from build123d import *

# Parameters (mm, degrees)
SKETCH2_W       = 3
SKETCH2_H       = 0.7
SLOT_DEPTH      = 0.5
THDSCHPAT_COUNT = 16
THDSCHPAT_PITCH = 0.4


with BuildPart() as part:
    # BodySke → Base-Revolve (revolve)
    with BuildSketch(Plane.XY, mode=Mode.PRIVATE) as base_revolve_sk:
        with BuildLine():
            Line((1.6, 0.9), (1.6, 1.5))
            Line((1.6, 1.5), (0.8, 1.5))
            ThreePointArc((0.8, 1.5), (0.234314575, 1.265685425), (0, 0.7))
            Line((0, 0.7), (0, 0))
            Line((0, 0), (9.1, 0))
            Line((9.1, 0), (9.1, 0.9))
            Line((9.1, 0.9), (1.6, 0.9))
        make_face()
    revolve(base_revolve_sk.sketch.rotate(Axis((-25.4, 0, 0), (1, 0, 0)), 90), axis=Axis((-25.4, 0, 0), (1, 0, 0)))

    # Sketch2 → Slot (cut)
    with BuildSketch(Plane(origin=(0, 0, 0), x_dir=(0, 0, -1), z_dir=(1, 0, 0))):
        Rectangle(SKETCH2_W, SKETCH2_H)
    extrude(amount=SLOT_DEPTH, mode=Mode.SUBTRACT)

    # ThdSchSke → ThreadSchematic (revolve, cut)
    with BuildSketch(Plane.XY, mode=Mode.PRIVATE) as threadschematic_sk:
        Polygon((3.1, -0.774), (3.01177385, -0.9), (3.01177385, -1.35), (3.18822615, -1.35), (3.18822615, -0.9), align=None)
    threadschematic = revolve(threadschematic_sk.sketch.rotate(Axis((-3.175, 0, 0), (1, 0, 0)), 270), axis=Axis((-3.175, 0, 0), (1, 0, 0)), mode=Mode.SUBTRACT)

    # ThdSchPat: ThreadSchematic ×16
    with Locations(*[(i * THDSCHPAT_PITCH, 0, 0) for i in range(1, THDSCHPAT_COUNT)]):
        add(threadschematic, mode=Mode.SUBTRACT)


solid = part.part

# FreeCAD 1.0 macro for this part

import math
import FreeCAD as App
import Part
import Sketcher

V = App.Vector
Q = App.Units.Quantity

doc = App.newDocument("Part")
body = doc.addObject("PartDesign::Body", "Body")

sketch1 = body.newObject("Sketcher::SketchObject", "Sketch")
sketch1.AttachmentSupport = (doc.getObject("XY_Plane"), [""])
sketch1.MapMode = "FlatFace"
sketch1.addGeometry(Part.LineSegment(V(1.6, 0.9, 0), V(1.6, 1.5, 0)), False)
sketch1.addGeometry(Part.LineSegment(V(1.6, 1.5, 0), V(0.8, 1.5, 0)), False)
sketch1.addGeometry(Part.ArcOfCircle(Part.Circle(V(0.8, 0.7, 0), V(0, 0, 1), 0.8), math.radians(90), math.radians(180)), False)
sketch1.addGeometry(Part.LineSegment(V(0, 0.7, 0), V(0, 0, 0)), False)
sketch1.addGeometry(Part.LineSegment(V(0, 0, 0), V(9.1, 0, 0)), False)
sketch1.addGeometry(Part.LineSegment(V(9.1, 0, 0), V(9.1, 0.9, 0)), False)
sketch1.addGeometry(Part.LineSegment(V(9.1, 0.9, 0), V(1.6, 0.9, 0)), False)
sketch1.addConstraint(Sketcher.Constraint("Coincident", 0, 2, 1, 1))
sketch1.addConstraint(Sketcher.Constraint("Tangent", 1, 2, 2, 1))
sketch1.addConstraint(Sketcher.Constraint("Tangent", 2, 2, 3, 1))
sketch1.addConstraint(Sketcher.Constraint("Coincident", 3, 2, 4, 1))
sketch1.addConstraint(Sketcher.Constraint("Coincident", 4, 2, 5, 1))
sketch1.addConstraint(Sketcher.Constraint("Coincident", 5, 2, 6, 1))
sketch1.addConstraint(Sketcher.Constraint("Coincident", 6, 2, 0, 1))
sketch1.addConstraint(Sketcher.Constraint("Vertical", 0))
sketch1.addConstraint(Sketcher.Constraint("Horizontal", 1))
sketch1.addConstraint(Sketcher.Constraint("Vertical", 3))
sketch1.addConstraint(Sketcher.Constraint("Horizontal", 4))
sketch1.addConstraint(Sketcher.Constraint("Vertical", 5))
sketch1.addConstraint(Sketcher.Constraint("Horizontal", 6))
sketch1.addConstraint(Sketcher.Constraint("Coincident", 3, 2, -1, 1))
sketch1.addConstraint(Sketcher.Constraint("Radius", 2, 0.8))
sketch1.addConstraint(Sketcher.Constraint("DistanceX", 1, 2, 1, 1, 0.8))
sketch1.addConstraint(Sketcher.Constraint("DistanceX", 4, 1, 4, 2, 9.1))
sketch1.addConstraint(Sketcher.Constraint("DistanceY", 0, 1, 0, 2, 0.6))
sketch1.addConstraint(Sketcher.Constraint("DistanceY", 3, 2, 3, 1, 0.7))
revolution = body.newObject("PartDesign::Revolution", "Revolution")
revolution.Profile = sketch1
revolution.ReferenceAxis = (sketch1, ["H_Axis"])
revolution.Angle = 360

sketch2 = body.newObject("Sketcher::SketchObject", "Sketch001")
sketch2.AttachmentSupport = (doc.getObject("YZ_Plane"), [""])
sketch2.MapMode = "FlatFace"
sketch2.addGeometry(Part.LineSegment(V(0.35, 1.5, 0), V(-0.35, 1.5, 0)), False)
sketch2.addGeometry(Part.LineSegment(V(-0.35, 1.5, 0), V(-0.35, -1.5, 0)), False)
sketch2.addGeometry(Part.LineSegment(V(-0.35, -1.5, 0), V(0.35, -1.5, 0)), False)
sketch2.addGeometry(Part.LineSegment(V(0.35, -1.5, 0), V(0.35, 1.5, 0)), False)
sketch2.addConstraint(Sketcher.Constraint("Coincident", 0, 2, 1, 1))
sketch2.addConstraint(Sketcher.Constraint("Coincident", 1, 2, 2, 1))
sketch2.addConstraint(Sketcher.Constraint("Coincident", 2, 2, 3, 1))
sketch2.addConstraint(Sketcher.Constraint("Coincident", 3, 2, 0, 1))
sketch2.addConstraint(Sketcher.Constraint("Horizontal", 0))
sketch2.addConstraint(Sketcher.Constraint("Vertical", 1))
sketch2.addConstraint(Sketcher.Constraint("Horizontal", 2))
sketch2.addConstraint(Sketcher.Constraint("Vertical", 3))
sketch2.addConstraint(Sketcher.Constraint("Symmetric", 0, 2, 2, 2, -1, 1))
sketch2.addConstraint(Sketcher.Constraint("DistanceY", 1, 2, 1, 1, 3.0))
sketch2.addConstraint(Sketcher.Constraint("DistanceX", 0, 2, 0, 1, 0.7))
pocket1 = body.newObject("PartDesign::Pocket", "Pocket")
pocket1.Profile = sketch2
pocket1.Length = 0.5
pocket1.Reversed = True

sketch3 = body.newObject("Sketcher::SketchObject", "Sketch002")
sketch3.AttachmentSupport = (doc.getObject("XY_Plane"), [""])
sketch3.MapMode = "FlatFace"
sketch3.addGeometry(Part.LineSegment(V(3.1, -0.774, 0), V(3.011774, -0.9, 0)), False)
sketch3.addGeometry(Part.LineSegment(V(3.011774, -0.9, 0), V(3.011774, -1.35, 0)), False)
sketch3.addGeometry(Part.LineSegment(V(3.011774, -1.35, 0), V(3.188226, -1.35, 0)), False)
sketch3.addGeometry(Part.LineSegment(V(3.188226, -1.35, 0), V(3.188226, -0.9, 0)), False)
sketch3.addGeometry(Part.LineSegment(V(3.188226, -0.9, 0), V(3.1, -0.774, 0)), False)
sketch3.addConstraint(Sketcher.Constraint("Coincident", 0, 2, 1, 1))
sketch3.addConstraint(Sketcher.Constraint("Coincident", 1, 2, 2, 1))
sketch3.addConstraint(Sketcher.Constraint("Coincident", 2, 2, 3, 1))
sketch3.addConstraint(Sketcher.Constraint("Coincident", 3, 2, 4, 1))
sketch3.addConstraint(Sketcher.Constraint("Coincident", 4, 2, 0, 1))
sketch3.addConstraint(Sketcher.Constraint("Vertical", 1))
sketch3.addConstraint(Sketcher.Constraint("Horizontal", 2))
sketch3.addConstraint(Sketcher.Constraint("Vertical", 3))
sketch3.addConstraint(Sketcher.Constraint("Horizontal", 0, 2, 3, 2))
sketch3.addConstraint(Sketcher.Constraint("Equal", 0, 4))
sketch3.addConstraint(Sketcher.Constraint("Angle", 0, Q("-125 deg")))
sketch3.addConstraint(Sketcher.Constraint("DistanceY", 1, 2, 1, 1, 0.45))
sketch3.addConstraint(Sketcher.Constraint("DistanceY", 0, 2, -1, 1, 0.9))
sketch3.addConstraint(Sketcher.Constraint("DistanceX", -1, 1, 4, 2, 3.1))
sketch3.addConstraint(Sketcher.Constraint("DistanceY", 4, 2, -1, 1, 0.774))
groove = body.newObject("PartDesign::Groove", "Groove")
groove.Profile = sketch3
groove.ReferenceAxis = (sketch3, ["H_Axis"])
groove.Angle = 360
doc.recompute()

linearpattern = body.newObject("PartDesign::LinearPattern", "LinearPattern")
linearpattern.Originals = [groove]
linearpattern.Direction = (doc.getObject("X_Axis"), [""])
linearpattern.Mode = "offset"
linearpattern.Offset = 0.4
linearpattern.Occurrences = 16
body.Tip = linearpattern

doc.recompute()
